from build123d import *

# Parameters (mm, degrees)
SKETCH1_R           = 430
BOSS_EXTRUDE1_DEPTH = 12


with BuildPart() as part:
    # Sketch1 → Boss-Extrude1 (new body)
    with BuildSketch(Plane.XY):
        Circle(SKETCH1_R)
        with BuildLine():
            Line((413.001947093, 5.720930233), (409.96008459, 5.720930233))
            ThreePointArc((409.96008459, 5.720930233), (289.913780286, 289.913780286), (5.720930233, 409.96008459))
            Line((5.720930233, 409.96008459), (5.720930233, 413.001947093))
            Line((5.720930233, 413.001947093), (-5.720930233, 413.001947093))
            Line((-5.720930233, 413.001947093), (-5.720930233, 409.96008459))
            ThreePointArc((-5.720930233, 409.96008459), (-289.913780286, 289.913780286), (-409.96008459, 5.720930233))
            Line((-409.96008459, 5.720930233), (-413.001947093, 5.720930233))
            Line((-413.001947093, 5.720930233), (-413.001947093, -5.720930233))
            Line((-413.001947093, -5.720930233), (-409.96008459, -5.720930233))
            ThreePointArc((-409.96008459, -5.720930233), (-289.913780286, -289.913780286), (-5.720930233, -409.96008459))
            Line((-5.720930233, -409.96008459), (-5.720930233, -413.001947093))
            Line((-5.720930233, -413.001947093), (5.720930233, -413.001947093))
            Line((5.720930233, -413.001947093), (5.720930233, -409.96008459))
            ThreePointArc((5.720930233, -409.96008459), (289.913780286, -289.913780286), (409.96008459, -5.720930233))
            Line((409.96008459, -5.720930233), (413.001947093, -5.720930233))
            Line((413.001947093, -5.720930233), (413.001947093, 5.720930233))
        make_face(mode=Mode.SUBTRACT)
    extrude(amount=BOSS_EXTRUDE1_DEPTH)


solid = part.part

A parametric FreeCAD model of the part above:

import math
import FreeCAD as App
import Part
import Sketcher

doc = App.newDocument("Part")
body = doc.addObject("PartDesign::Body", "Body")

# Sketch on XY plane
sketch1 = doc.addObject("Sketcher::SketchObject", "Sketch")
body.addObject(sketch1)
sketch1.AttachmentSupport = (doc.XY_Plane, [""])
sketch1.MapMode = "FlatFace"
sketch1.addGeometry([
    Part.Circle(App.Vector(0, 0, 0), App.Vector(0, 0, 1), 430),  # 0
    Part.LineSegment(App.Vector(409.960085, 5.72093, 0), App.Vector(413.001947, 5.72093, 0)),  # 1
    Part.LineSegment(App.Vector(413.001947, 5.72093, 0), App.Vector(413.001947, -5.72093, 0)),  # 2
    Part.LineSegment(App.Vector(413.001947, -5.72093, 0), App.Vector(409.960085, -5.72093, 0)),  # 3
    Part.ArcOfCircle(Part.Circle(App.Vector(0, 0, 0), App.Vector(0, 0, 1), 410), math.radians(-89.200498), math.radians(-0.799502)),  # 4
    Part.LineSegment(App.Vector(5.72093, -409.960085, 0), App.Vector(5.72093, -413.001947, 0)),  # 5
    Part.LineSegment(App.Vector(5.72093, -413.001947, 0), App.Vector(-5.72093, -413.001947, 0)),  # 6
    Part.LineSegment(App.Vector(-5.72093, -413.001947, 0), App.Vector(-5.72093, -409.960085, 0)),  # 7
    Part.ArcOfCircle(Part.Circle(App.Vector(0, 0, 0), App.Vector(0, 0, 1), 410), math.radians(-179.200498), math.radians(-90.799502)),  # 8
    Part.LineSegment(App.Vector(-409.960085, -5.72093, 0), App.Vector(-413.001947, -5.72093, 0)),  # 9
    Part.LineSegment(App.Vector(-413.001947, -5.72093, 0), App.Vector(-413.001947, 5.72093, 0)),  # 10
    Part.LineSegment(App.Vector(-413.001947, 5.72093, 0), App.Vector(-409.960085, 5.72093, 0)),  # 11
    Part.ArcOfCircle(Part.Circle(App.Vector(0, 0, 0), App.Vector(0, 0, 1), 410), math.radians(90.799502), math.radians(179.200498)),  # 12
    Part.LineSegment(App.Vector(-5.72093, 409.960085, 0), App.Vector(-5.72093, 413.001947, 0)),  # 13
    Part.LineSegment(App.Vector(-5.72093, 413.001947, 0), App.Vector(5.72093, 413.001947, 0)),  # 14
    Part.LineSegment(App.Vector(5.72093, 413.001947, 0), App.Vector(5.72093, 409.960085, 0)),  # 15
    Part.ArcOfCircle(Part.Circle(App.Vector(0, 0, 0), App.Vector(0, 0, 1), 410), math.radians(0.799502), math.radians(89.200498)),  # 16
], False)
sketch1.addConstraint([
    Sketcher.Constraint("Coincident", 1, 2, 2, 1),
    Sketcher.Constraint("Coincident", 2, 2, 3, 1),
    Sketcher.Constraint("Coincident", 3, 2, 4, 2),
    Sketcher.Constraint("Coincident", 4, 1, 5, 1),
    Sketcher.Constraint("Coincident", 5, 2, 6, 1),
    Sketcher.Constraint("Coincident", 6, 2, 7, 1),
    Sketcher.Constraint("Coincident", 7, 2, 8, 2),
    Sketcher.Constraint("Coincident", 8, 1, 9, 1),
    Sketcher.Constraint("Coincident", 9, 2, 10, 1),
    Sketcher.Constraint("Coincident", 10, 2, 11, 1),
    Sketcher.Constraint("Coincident", 11, 2, 12, 2),
    Sketcher.Constraint("Coincident", 12, 1, 13, 1),
    Sketcher.Constraint("Coincident", 13, 2, 14, 1),
    Sketcher.Constraint("Coincident", 14, 2, 15, 1),
    Sketcher.Constraint("Coincident", 15, 2, 16, 2),
    Sketcher.Constraint("Coincident", 16, 1, 1, 1),
    Sketcher.Constraint("Horizontal", 1),
    Sketcher.Constraint("Vertical", 2),
    Sketcher.Constraint("Horizontal", 3),
    Sketcher.Constraint("Vertical", 5),
    Sketcher.Constraint("Horizontal", 6),
    Sketcher.Constraint("Vertical", 7),
    Sketcher.Constraint("Horizontal", 9),
    Sketcher.Constraint("Vertical", 10),
    Sketcher.Constraint("Horizontal", 11),
    Sketcher.Constraint("Vertical", 13),
    Sketcher.Constraint("Horizontal", 14),
    Sketcher.Constraint("Vertical", 15),
    Sketcher.Constraint("Coincident", 0, 3, -1, 1),
    Sketcher.Constraint("Coincident", 4, 3, -1, 1),
    Sketcher.Constraint("Coincident", 8, 3, -1, 1),
    Sketcher.Constraint("Coincident", 12, 3, -1, 1),
    Sketcher.Constraint("Coincident", 16, 3, -1, 1),
    Sketcher.Constraint("Equal", 4, 8),
    Sketcher.Constraint("Equal", 8, 12),
    Sketcher.Constraint("Equal", 12, 16),
    Sketcher.Constraint("Symmetric", 1, 2, 9, 2, -1, 1),
    Sketcher.Constraint("Symmetric", 5, 2, 13, 2, -1, 1),
    Sketcher.Constraint("Horizontal", 1, 2, 10, 2),
    Sketcher.Constraint("Vertical", 5, 2, 14, 2),
    Sketcher.Constraint("Equal", 1, 3),
    Sketcher.Constraint("Equal", 6, 14),
    Sketcher.Constraint("Equal", 14, 2),
    Sketcher.Constraint("Equal", 11, 5),
    Sketcher.Constraint("Diameter", 0, 860.0),
    Sketcher.Constraint("Radius", 4, 410.0),
    Sketcher.Constraint("DistanceX", 6, 2, 6, 1, 11.44186),
    Sketcher.Constraint("DistanceX", 1, 1, 1, 2, 3.041863),
])
pad1 = doc.addObject("PartDesign::Pad", "Pad")
body.addObject(pad1)
pad1.Profile = sketch1
pad1.Length = 12

doc.recompute()
